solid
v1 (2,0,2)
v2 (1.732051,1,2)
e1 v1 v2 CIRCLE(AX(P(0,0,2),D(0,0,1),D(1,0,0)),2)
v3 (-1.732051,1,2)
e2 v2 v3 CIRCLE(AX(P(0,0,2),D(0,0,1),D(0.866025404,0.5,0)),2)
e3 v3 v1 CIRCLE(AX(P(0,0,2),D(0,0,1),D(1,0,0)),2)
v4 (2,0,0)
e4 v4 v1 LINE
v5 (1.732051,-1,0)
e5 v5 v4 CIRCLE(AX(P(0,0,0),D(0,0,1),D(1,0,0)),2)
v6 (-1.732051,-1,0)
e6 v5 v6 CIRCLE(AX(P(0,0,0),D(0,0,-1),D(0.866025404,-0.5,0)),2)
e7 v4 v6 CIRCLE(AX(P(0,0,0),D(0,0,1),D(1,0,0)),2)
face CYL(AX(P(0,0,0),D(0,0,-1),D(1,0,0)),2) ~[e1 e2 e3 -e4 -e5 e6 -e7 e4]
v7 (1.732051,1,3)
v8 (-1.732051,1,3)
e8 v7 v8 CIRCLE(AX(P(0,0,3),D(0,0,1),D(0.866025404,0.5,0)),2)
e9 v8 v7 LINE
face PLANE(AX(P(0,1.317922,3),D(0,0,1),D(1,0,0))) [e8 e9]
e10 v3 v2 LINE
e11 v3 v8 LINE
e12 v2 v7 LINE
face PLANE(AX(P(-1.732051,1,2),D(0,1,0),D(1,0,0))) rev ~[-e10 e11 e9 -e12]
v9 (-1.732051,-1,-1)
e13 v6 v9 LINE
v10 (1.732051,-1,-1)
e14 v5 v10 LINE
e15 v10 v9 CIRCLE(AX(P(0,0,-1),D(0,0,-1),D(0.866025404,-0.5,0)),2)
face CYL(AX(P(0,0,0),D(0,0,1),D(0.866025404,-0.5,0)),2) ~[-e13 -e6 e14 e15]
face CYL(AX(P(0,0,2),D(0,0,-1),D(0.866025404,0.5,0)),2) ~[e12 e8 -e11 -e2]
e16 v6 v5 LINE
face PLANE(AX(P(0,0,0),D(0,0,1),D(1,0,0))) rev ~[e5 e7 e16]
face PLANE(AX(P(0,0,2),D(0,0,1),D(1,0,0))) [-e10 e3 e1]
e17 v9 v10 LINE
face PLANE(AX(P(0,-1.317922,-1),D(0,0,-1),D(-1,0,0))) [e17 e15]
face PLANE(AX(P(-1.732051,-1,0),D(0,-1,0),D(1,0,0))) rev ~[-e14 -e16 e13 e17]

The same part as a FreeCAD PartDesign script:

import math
import FreeCAD as App
import Part
import Sketcher
Q = App.Units.Quantity

doc = App.newDocument("Part")
body = doc.addObject("PartDesign::Body", "Body")

sketch1 = body.newObject("Sketcher::SketchObject", "Sketch")
sketch1.AttachmentSupport = (doc.getObject("XY_Plane"), [""])
sketch1.MapMode = "FlatFace"
sketch1.addGeometry(Part.Circle(App.Vector(0, 0, 0), App.Vector(0, 0, 1), 2), False)
sketch1.addConstraint([
    Sketcher.Constraint("Coincident", 0, 3, -1, 1),
    Sketcher.Constraint("Diameter", 0, Q("4 mm")),
])
pad1 = body.newObject("PartDesign::Pad", "Pad")
pad1.Profile = sketch1
pad1.Length = 2

sketch2 = body.newObject("Sketcher::SketchObject", "Sketch001")
sketch2.AttachmentSupport = (doc.getObject("XY_Plane"), [""])
sketch2.MapMode = "FlatFace"
sketch2.AttachmentOffset = App.Placement(App.Vector(0, 0, 2), App.Rotation())
sketch2.addGeometry([
    Part.LineSegment(App.Vector(-1.732051, 1, 0), App.Vector(1.732051, 1, 0)),
    Part.ArcOfCircle(Part.Circle(App.Vector(0, 0, 0), App.Vector(0, 0, 1), 2), math.radians(30), math.radians(150)),
], False)
sketch2.addConstraint([
    Sketcher.Constraint("Coincident", 0, 1, 1, 2),
    Sketcher.Constraint("Coincident", 1, 1, 0, 2),
    Sketcher.Constraint("Horizontal", 0),
    Sketcher.Constraint("Coincident", 1, 3, -1, 1),
    Sketcher.Constraint("Radius", 1, Q("2 mm")),
    Sketcher.Constraint("DistanceY", -1, 1, 0, 1, Q("1 mm")),
])
pad2 = body.newObject("PartDesign::Pad", "Pad001")
pad2.Profile = sketch2
pad2.Length = 1

sketch3 = body.newObject("Sketcher::SketchObject", "Sketch002")
sketch3.AttachmentSupport = (doc.getObject("XY_Plane"), [""])
sketch3.MapMode = "FlatFace"
sketch3.addGeometry([
    Part.LineSegment(App.Vector(-1.732051, -1, 0), App.Vector(1.732051, -1, 0)),
    Part.ArcOfCircle(Part.Circle(App.Vector(0, 0, 0), App.Vector(0, 0, 1), 2), math.radians(-150), math.radians(-30)),
], False)
sketch3.addConstraint([
    Sketcher.Constraint("Coincident", 0, 1, 1, 1),
    Sketcher.Constraint("Coincident", 1, 2, 0, 2),
    Sketcher.Constraint("Horizontal", 0),
    Sketcher.Constraint("Coincident", 1, 3, -1, 1),
    Sketcher.Constraint("Radius", 1, Q("2 mm")),
    Sketcher.Constraint("DistanceY", 0, 1, -1, 1, Q("1 mm")),
])
pad3 = body.newObject("PartDesign::Pad", "Pad002")
pad3.Profile = sketch3
pad3.Length = 1
pad3.Reversed = True

doc.recompute()
